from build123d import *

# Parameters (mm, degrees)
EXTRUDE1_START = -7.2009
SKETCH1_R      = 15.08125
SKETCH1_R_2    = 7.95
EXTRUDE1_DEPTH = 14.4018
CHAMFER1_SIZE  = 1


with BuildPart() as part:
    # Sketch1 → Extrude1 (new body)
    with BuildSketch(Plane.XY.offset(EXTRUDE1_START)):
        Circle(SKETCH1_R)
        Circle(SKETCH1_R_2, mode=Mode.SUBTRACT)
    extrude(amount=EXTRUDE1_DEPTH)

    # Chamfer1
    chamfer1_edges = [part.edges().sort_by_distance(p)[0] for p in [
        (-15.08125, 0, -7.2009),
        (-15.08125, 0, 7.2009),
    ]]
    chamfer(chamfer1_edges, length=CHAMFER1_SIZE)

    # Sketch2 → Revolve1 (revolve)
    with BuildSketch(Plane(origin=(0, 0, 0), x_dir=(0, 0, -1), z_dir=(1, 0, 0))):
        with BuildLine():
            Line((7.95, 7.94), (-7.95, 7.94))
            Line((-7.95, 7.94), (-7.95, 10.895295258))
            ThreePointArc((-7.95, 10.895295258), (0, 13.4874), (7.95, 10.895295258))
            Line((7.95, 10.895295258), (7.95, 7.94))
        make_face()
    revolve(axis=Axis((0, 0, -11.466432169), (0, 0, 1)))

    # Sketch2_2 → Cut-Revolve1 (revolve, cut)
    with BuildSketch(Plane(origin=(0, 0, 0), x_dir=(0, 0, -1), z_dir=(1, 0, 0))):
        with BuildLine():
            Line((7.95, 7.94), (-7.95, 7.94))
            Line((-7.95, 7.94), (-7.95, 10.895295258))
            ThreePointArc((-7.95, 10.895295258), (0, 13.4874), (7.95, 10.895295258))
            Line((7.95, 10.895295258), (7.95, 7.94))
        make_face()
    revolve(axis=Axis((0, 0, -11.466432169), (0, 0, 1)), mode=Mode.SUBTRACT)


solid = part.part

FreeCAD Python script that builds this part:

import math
import FreeCAD as App
import Part
import Sketcher
Q = App.Units.Quantity


def edges_at(feature, points):
    """Names of the edges that pass closest to the given points."""
    edges = feature.Shape.Edges
    near = lambda p: min(range(len(edges)), key=lambda i: edges[i].distToShape(Part.Vertex(*p))[0])
    return sorted({f"Edge{near(p) + 1}" for p in points})

doc = App.newDocument("Part")
body = doc.addObject("PartDesign::Body", "Body")

# Sketch on XY plane
sketch1 = doc.addObject("Sketcher::SketchObject", "Sketch")
body.addObject(sketch1)
sketch1.AttachmentSupport = (doc.XY_Plane, [""])
sketch1.MapMode = "FlatFace"
sketch1.AttachmentOffset = App.Placement(App.Vector(0, 0, -0.2835 * 25.4), App.Rotation())
sketch1.addGeometry([
    Part.Circle(App.Vector(0, 0, 0), App.Vector(0, 0, 1), 15.08125),
    Part.Circle(App.Vector(0, 0, 0), App.Vector(0, 0, 1), 7.95),
], False)
sketch1.addConstraint([
    Sketcher.Constraint("Coincident", 0, 3, -1, 1),
    Sketcher.Constraint("Coincident", 1, 3, -1, 1),
    Sketcher.Constraint("Diameter", 0, Q("1.1875 in")),
    Sketcher.Constraint("Diameter", 1, 15.9),
])
pad1 = doc.addObject("PartDesign::Pad", "Pad")
body.addObject(pad1)
pad1.Profile = sketch1
pad1.Length = Q("0.567 in")
doc.recompute()

chamfer = doc.addObject("PartDesign::Chamfer", "Chamfer")
body.addObject(chamfer)
chamfer.Base = (pad1, edges_at(pad1, [(-15.081, 0, -7.201), (-15.081, 0, 7.201)]))
chamfer.Size = 1

# Sketch on YZ plane
sketch2 = doc.addObject("Sketcher::SketchObject", "Sketch001")
body.addObject(sketch2)
sketch2.AttachmentSupport = (doc.YZ_Plane, [""])
sketch2.MapMode = "FlatFace"
sketch2.addGeometry([
    Part.LineSegment(App.Vector(7.94, 7.95, 0), App.Vector(7.94, -7.95, 0)),
    Part.LineSegment(App.Vector(7.94, -7.95, 0), App.Vector(10.895295, -7.95, 0)),
    Part.ArcOfCircle(Part.Circle(App.Vector(0, 0, 0), App.Vector(0, 0, 1), 13.4874), math.radians(-36.11721), math.radians(36.11721)),
    Part.LineSegment(App.Vector(10.895295, 7.95, 0), App.Vector(7.94, 7.95, 0)),
], False)
sketch2.addConstraint([
    Sketcher.Constraint("Coincident", 0, 2, 1, 1),
    Sketcher.Constraint("Coincident", 1, 2, 2, 1),
    Sketcher.Constraint("Coincident", 2, 2, 3, 1),
    Sketcher.Constraint("Coincident", 3, 2, 0, 1),
    Sketcher.Constraint("Vertical", 0),
    Sketcher.Constraint("Horizontal", 1),
    Sketcher.Constraint("Horizontal", 3),
    Sketcher.Constraint("Coincident", 2, 3, -1, 1),
    Sketcher.Constraint("Vertical", 1, 2, 2, 2),
    Sketcher.Constraint("Radius", 2, Q("0.531 in")),
    Sketcher.Constraint("DistanceY", 0, 2, 0, 1, 15.9),
    Sketcher.Constraint("DistanceX", -1, 1, 0, 2, 7.94),
])
revolution = doc.addObject("PartDesign::Revolution", "Revolution")
body.addObject(revolution)
revolution.Profile = sketch2
revolution.ReferenceAxis = (sketch2, ["V_Axis"])
revolution.Angle = 360

# Sketch on YZ plane
sketch3 = doc.addObject("Sketcher::SketchObject", "Sketch002")
body.addObject(sketch3)
sketch3.AttachmentSupport = (doc.YZ_Plane, [""])
sketch3.MapMode = "FlatFace"
sketch3.addGeometry([
    Part.LineSegment(App.Vector(7.94, 7.95, 0), App.Vector(7.94, -7.95, 0)),
    Part.LineSegment(App.Vector(7.94, -7.95, 0), App.Vector(10.895295, -7.95, 0)),
    Part.ArcOfCircle(Part.Circle(App.Vector(0, 0, 0), App.Vector(0, 0, 1), 13.4874), math.radians(-36.11721), math.radians(36.11721)),
    Part.LineSegment(App.Vector(10.895295, 7.95, 0), App.Vector(7.94, 7.95, 0)),
], False)
sketch3.addConstraint([
    Sketcher.Constraint("Coincident", 0, 2, 1, 1),
    Sketcher.Constraint("Coincident", 1, 2, 2, 1),
    Sketcher.Constraint("Coincident", 2, 2, 3, 1),
    Sketcher.Constraint("Coincident", 3, 2, 0, 1),
    Sketcher.Constraint("Vertical", 0),
    Sketcher.Constraint("Horizontal", 1),
    Sketcher.Constraint("Horizontal", 3),
    Sketcher.Constraint("Coincident", 2, 3, -1, 1),
    Sketcher.Constraint("Vertical", 1, 2, 2, 2),
    Sketcher.Constraint("Radius", 2, Q("0.531 in")),
    Sketcher.Constraint("DistanceY", 0, 2, 0, 1, 15.9),
    Sketcher.Constraint("DistanceX", -1, 1, 0, 2, 7.94),
])
groove = doc.addObject("PartDesign::Groove", "Groove")
body.addObject(groove)
groove.Profile = sketch3
groove.ReferenceAxis = (sketch3, ["V_Axis"])
groove.Angle = 360

doc.recompute()
